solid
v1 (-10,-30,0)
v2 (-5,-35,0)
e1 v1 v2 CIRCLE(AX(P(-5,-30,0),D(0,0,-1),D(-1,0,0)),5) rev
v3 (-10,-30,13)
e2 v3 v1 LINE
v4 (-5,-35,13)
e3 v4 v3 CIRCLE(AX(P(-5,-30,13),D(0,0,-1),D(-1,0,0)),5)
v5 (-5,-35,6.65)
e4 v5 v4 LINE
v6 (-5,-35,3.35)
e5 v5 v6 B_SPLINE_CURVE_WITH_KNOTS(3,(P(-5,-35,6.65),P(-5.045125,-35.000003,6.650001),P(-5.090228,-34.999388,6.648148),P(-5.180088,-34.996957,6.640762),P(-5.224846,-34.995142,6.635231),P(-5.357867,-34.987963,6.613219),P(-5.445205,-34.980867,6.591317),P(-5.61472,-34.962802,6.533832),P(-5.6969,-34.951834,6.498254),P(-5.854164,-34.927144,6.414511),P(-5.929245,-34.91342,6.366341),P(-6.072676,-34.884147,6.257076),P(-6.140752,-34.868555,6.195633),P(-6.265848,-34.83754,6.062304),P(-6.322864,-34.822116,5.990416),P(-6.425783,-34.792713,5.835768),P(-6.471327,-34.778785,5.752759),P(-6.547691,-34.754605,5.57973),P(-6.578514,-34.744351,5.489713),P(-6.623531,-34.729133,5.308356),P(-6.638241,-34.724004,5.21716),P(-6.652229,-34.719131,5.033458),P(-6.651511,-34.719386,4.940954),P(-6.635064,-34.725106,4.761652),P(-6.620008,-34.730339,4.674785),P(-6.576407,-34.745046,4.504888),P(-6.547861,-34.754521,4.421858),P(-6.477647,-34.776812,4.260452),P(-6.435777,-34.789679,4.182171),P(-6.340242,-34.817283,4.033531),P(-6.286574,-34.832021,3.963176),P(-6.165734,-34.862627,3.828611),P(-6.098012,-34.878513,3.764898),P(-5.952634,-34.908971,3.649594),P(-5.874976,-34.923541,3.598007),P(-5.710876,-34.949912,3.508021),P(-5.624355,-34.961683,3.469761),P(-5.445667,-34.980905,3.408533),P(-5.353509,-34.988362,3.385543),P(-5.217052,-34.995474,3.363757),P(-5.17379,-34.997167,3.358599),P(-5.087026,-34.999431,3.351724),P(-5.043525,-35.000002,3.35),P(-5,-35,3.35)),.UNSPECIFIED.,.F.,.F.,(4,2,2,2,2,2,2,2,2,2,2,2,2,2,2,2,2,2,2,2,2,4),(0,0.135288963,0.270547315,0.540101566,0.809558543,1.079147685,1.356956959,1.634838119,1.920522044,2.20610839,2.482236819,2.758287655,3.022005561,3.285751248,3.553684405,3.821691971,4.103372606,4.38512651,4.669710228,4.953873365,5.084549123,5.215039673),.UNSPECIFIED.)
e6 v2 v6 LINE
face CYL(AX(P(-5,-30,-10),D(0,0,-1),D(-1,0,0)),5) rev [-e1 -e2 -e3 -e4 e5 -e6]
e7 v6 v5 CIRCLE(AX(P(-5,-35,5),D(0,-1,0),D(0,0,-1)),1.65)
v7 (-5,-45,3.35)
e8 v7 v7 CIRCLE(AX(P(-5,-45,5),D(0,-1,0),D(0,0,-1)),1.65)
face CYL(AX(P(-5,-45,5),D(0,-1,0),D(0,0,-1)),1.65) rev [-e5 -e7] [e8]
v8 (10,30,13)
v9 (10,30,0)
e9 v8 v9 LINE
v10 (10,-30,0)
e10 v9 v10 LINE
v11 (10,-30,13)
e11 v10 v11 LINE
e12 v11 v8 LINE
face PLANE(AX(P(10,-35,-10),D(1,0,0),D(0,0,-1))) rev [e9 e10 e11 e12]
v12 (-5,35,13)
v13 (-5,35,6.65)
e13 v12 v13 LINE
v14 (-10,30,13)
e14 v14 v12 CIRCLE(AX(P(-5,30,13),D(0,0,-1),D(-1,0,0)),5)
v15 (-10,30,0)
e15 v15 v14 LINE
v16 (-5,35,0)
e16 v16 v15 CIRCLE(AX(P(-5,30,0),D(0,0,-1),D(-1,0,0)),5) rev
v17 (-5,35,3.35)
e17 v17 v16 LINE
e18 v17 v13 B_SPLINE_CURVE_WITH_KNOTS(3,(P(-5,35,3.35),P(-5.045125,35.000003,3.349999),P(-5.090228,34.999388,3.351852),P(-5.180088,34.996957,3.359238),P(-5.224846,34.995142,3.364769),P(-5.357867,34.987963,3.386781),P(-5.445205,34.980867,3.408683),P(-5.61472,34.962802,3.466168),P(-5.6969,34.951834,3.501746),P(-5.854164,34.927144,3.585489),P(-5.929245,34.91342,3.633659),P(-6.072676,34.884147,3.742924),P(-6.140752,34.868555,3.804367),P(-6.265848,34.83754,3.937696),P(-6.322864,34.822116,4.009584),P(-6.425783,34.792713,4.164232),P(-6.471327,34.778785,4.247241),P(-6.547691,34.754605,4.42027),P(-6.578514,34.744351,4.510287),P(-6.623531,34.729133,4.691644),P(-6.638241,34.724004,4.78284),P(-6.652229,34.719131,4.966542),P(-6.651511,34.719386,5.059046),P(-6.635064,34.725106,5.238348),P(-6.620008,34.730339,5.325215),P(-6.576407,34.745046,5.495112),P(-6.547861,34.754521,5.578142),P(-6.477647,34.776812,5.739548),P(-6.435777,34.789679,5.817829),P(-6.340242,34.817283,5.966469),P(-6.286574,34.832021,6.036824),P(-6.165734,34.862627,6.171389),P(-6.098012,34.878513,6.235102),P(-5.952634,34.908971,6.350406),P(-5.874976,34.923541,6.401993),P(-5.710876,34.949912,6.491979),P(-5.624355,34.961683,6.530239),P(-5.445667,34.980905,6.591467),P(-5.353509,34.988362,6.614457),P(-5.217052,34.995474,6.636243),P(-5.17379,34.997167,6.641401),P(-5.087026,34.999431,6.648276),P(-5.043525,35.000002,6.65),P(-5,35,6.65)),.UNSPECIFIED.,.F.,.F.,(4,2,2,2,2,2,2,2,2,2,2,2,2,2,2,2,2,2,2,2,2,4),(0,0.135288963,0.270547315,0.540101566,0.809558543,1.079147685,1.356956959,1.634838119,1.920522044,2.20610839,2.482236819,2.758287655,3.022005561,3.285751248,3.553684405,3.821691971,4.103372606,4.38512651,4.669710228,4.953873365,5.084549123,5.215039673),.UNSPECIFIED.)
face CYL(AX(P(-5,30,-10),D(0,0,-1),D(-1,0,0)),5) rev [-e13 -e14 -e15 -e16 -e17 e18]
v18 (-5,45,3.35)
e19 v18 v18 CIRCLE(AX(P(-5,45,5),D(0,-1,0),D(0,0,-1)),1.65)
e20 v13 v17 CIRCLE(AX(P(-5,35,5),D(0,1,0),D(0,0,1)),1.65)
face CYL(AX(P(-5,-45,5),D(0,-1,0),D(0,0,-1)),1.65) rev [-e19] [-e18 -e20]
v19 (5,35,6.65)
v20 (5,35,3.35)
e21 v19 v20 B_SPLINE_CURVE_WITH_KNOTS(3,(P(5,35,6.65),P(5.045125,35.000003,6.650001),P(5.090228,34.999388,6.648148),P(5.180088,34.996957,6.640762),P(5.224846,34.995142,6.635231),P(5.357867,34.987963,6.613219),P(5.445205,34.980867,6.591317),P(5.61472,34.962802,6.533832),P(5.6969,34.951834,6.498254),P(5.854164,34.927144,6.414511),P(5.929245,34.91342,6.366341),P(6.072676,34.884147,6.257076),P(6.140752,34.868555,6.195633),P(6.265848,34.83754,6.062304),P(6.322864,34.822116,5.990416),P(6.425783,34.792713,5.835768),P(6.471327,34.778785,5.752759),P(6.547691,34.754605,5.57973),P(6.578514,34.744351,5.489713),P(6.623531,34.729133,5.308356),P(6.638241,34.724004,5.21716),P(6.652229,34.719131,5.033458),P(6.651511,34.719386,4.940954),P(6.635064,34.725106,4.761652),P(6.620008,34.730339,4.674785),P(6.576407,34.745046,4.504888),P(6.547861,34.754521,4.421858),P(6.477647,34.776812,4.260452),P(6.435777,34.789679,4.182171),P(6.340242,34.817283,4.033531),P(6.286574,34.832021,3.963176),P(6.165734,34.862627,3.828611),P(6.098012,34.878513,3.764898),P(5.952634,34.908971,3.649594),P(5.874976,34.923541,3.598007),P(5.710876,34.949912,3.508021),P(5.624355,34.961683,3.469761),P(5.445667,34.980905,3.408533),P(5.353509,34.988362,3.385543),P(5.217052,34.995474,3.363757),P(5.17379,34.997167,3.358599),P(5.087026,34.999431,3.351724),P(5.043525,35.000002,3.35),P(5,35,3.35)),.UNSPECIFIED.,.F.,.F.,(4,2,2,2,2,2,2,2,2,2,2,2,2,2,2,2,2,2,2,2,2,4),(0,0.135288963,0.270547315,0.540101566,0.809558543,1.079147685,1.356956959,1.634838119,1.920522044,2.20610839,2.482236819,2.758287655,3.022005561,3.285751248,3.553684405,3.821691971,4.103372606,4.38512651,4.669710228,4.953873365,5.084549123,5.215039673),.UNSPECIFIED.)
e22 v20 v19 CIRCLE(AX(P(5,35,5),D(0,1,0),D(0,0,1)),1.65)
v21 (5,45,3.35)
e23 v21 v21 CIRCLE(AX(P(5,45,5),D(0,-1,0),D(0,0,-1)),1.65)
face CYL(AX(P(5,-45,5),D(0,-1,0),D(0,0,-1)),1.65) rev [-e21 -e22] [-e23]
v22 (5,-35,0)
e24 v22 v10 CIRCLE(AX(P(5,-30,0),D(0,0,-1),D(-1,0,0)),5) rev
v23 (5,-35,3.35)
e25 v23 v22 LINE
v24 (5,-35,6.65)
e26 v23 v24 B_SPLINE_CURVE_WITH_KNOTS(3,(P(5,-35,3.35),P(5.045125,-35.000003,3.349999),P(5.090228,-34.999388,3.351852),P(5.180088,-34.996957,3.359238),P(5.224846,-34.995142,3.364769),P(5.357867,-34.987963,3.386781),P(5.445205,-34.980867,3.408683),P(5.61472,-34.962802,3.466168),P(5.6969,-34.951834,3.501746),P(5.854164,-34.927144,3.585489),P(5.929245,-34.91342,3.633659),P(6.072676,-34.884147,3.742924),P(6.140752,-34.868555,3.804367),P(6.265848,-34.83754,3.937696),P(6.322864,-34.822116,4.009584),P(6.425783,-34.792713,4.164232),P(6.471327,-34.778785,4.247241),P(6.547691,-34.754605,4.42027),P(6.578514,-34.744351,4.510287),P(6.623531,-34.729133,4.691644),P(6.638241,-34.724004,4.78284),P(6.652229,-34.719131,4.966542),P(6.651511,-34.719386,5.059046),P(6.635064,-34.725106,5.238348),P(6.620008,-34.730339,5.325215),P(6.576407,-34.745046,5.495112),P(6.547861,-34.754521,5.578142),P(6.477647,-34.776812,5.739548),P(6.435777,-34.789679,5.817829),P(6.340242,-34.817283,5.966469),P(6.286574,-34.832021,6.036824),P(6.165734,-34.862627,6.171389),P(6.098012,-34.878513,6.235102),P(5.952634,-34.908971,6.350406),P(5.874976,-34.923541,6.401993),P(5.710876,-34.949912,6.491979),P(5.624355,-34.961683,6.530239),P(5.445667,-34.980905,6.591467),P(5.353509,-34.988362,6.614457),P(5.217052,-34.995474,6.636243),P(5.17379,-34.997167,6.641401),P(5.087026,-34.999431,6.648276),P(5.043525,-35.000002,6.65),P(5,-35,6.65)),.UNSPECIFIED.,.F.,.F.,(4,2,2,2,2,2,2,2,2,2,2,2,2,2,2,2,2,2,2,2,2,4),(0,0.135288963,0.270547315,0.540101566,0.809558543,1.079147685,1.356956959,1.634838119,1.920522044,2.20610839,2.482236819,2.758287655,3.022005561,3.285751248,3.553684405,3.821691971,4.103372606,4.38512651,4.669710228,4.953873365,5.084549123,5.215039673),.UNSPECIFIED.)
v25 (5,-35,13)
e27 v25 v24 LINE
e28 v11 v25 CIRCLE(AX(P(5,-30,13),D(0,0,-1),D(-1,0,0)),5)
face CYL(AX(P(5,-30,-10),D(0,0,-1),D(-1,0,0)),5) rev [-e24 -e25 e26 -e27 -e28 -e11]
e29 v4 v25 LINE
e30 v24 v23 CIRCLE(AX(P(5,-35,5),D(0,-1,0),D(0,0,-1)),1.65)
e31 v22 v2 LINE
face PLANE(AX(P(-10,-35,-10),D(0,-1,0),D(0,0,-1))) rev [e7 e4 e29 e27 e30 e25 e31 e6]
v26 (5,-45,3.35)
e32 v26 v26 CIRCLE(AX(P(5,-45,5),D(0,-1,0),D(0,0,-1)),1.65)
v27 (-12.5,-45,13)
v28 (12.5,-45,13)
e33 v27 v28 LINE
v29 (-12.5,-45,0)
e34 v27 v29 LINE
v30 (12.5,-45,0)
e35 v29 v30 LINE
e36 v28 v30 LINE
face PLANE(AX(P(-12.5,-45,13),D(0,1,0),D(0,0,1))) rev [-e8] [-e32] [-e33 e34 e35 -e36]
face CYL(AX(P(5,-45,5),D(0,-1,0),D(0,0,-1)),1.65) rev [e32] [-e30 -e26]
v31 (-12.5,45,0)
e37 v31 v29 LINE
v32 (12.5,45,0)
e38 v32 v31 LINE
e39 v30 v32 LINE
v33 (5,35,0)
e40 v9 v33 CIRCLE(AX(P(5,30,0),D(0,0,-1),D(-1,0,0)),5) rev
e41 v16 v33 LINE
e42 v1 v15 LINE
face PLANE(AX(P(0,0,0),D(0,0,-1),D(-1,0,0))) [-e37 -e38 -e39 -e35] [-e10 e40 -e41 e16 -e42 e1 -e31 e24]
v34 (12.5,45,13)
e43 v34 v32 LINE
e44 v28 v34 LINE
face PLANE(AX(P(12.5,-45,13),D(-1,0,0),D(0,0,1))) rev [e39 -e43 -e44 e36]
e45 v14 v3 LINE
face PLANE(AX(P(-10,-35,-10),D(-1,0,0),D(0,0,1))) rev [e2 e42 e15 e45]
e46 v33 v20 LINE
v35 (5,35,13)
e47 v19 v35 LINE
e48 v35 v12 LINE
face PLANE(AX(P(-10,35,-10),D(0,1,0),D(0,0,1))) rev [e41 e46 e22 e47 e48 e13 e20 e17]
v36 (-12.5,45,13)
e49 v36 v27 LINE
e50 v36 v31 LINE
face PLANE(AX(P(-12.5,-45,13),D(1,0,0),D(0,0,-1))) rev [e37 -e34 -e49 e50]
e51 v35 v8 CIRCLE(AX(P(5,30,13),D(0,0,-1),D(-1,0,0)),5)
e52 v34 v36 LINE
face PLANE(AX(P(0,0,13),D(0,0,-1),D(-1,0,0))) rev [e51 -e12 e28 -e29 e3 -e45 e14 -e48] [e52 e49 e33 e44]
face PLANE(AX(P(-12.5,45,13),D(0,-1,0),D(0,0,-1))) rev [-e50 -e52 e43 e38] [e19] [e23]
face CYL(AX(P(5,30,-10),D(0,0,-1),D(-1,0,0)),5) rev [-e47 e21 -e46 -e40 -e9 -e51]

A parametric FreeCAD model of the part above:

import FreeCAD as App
import Part
import Sketcher
Q = App.Units.Quantity


def edges_at(feature, points):
    """Names of the edges that pass closest to the given points."""
    edges = feature.Shape.Edges
    near = lambda p: min(range(len(edges)), key=lambda i: edges[i].distToShape(Part.Vertex(*p))[0])
    return sorted({f"Edge{near(p) + 1}" for p in points})


def add_polygon(sketch, points):
    """Adds a closed chain of lines whose ends are joined by coincident constraints."""
    first, n = sketch.GeometryCount, len(points)
    for a, b in zip(points, points[1:] + points[:1]):
        sketch.addGeometry(Part.LineSegment(App.Vector(*a, 0), App.Vector(*b, 0)), False)
    for i in range(n):
        sketch.addConstraint(Sketcher.Constraint("Coincident", first + i, 2, first + (i + 1) % n, 1))

doc = App.newDocument("Part")
body = doc.addObject("PartDesign::Body", "Body")

# Sketch on XY plane
sketch1 = body.newObject("Sketcher::SketchObject", "Sketch")
sketch1.AttachmentSupport = (doc.getObject("XY_Plane"), [""])
sketch1.MapMode = "FlatFace"
add_polygon(sketch1, [(-12.5, 45), (-12.5, -45), (12.5, -45), (12.5, 45)])  # lines 0-3
sketch1.addConstraint(Sketcher.Constraint("Vertical", 0))
sketch1.addConstraint(Sketcher.Constraint("Horizontal", 1))
sketch1.addConstraint(Sketcher.Constraint("Vertical", 2))
sketch1.addConstraint(Sketcher.Constraint("Horizontal", 3))
sketch1.addConstraint(Sketcher.Constraint("Symmetric", 0, 2, 2, 2, -1, 1))
sketch1.addConstraint(Sketcher.Constraint("DistanceX", 1, 1, 1, 2, Q("25 mm")))
sketch1.addConstraint(Sketcher.Constraint("DistanceY", 0, 2, 0, 1, Q("90 mm")))
pad1 = body.newObject("PartDesign::Pad", "Pad")
pad1.Profile = sketch1
pad1.Length = 13

# Sketch on XY plane
sketch2 = body.newObject("Sketcher::SketchObject", "Sketch001")
sketch2.AttachmentSupport = (doc.getObject("XY_Plane"), [""])
sketch2.MapMode = "FlatFace"
sketch2.AttachmentOffset = App.Placement(App.Vector(0, 0, 13), App.Rotation())
add_polygon(sketch2, [(-10, 35), (-10, -35), (10, -35), (10, 35)])  # lines 0-3
sketch2.addConstraint(Sketcher.Constraint("Vertical", 0))
sketch2.addConstraint(Sketcher.Constraint("Horizontal", 1))
sketch2.addConstraint(Sketcher.Constraint("Vertical", 2))
sketch2.addConstraint(Sketcher.Constraint("Horizontal", 3))
sketch2.addConstraint(Sketcher.Constraint("Symmetric", 0, 2, 2, 2, -1, 1))
sketch2.addConstraint(Sketcher.Constraint("DistanceX", 1, 1, 1, 2, Q("20 mm")))
sketch2.addConstraint(Sketcher.Constraint("DistanceY", 0, 2, 0, 1, Q("70 mm")))
pocket1 = body.newObject("PartDesign::Pocket", "Pocket")
pocket1.Profile = sketch2
pocket1.Length = 23
doc.recompute()

fillet = body.newObject("PartDesign::Fillet", "Fillet")
fillet.Base = (pocket1, edges_at(pocket1, [
    (10, 35, 6.5),
    (10, -35, 6.5),
    (-10, -35, 6.5),
    (-10, 35, 6.5),
]))
fillet.Radius = 5

# Sketch on XZ plane
sketch3 = body.newObject("Sketcher::SketchObject", "Sketch002")
sketch3.AttachmentSupport = (doc.getObject("XZ_Plane"), [""])
sketch3.MapMode = "FlatFace"
sketch3.AttachmentOffset = App.Placement(App.Vector(0, 0, 45), App.Rotation())
sketch3.addGeometry(Part.Circle(App.Vector(5, 5, 0), App.Vector(0, 0, 1), 1.65), False)
sketch3.addGeometry(Part.Circle(App.Vector(-5, 5, 0), App.Vector(0, 0, 1), 1.65), False)
sketch3.addConstraint(Sketcher.Constraint("Equal", 0, 1))
sketch3.addConstraint(Sketcher.Constraint("Symmetric", 0, 3, 1, 3, -2))
sketch3.addConstraint(Sketcher.Constraint("Diameter", 0, Q("3.3 mm")))
sketch3.addConstraint(Sketcher.Constraint("DistanceX", -1, 1, 0, 3, Q("5 mm")))
sketch3.addConstraint(Sketcher.Constraint("DistanceY", -1, 1, 0, 3, Q("5 mm")))
doc.recompute()
hole = body.newObject("PartDesign::Hole", "Hole")
hole.Profile = sketch3
hole.ThreadType = "None"
hole.Diameter = 3.3
hole.DepthType = "ThroughAll"

doc.recompute()
